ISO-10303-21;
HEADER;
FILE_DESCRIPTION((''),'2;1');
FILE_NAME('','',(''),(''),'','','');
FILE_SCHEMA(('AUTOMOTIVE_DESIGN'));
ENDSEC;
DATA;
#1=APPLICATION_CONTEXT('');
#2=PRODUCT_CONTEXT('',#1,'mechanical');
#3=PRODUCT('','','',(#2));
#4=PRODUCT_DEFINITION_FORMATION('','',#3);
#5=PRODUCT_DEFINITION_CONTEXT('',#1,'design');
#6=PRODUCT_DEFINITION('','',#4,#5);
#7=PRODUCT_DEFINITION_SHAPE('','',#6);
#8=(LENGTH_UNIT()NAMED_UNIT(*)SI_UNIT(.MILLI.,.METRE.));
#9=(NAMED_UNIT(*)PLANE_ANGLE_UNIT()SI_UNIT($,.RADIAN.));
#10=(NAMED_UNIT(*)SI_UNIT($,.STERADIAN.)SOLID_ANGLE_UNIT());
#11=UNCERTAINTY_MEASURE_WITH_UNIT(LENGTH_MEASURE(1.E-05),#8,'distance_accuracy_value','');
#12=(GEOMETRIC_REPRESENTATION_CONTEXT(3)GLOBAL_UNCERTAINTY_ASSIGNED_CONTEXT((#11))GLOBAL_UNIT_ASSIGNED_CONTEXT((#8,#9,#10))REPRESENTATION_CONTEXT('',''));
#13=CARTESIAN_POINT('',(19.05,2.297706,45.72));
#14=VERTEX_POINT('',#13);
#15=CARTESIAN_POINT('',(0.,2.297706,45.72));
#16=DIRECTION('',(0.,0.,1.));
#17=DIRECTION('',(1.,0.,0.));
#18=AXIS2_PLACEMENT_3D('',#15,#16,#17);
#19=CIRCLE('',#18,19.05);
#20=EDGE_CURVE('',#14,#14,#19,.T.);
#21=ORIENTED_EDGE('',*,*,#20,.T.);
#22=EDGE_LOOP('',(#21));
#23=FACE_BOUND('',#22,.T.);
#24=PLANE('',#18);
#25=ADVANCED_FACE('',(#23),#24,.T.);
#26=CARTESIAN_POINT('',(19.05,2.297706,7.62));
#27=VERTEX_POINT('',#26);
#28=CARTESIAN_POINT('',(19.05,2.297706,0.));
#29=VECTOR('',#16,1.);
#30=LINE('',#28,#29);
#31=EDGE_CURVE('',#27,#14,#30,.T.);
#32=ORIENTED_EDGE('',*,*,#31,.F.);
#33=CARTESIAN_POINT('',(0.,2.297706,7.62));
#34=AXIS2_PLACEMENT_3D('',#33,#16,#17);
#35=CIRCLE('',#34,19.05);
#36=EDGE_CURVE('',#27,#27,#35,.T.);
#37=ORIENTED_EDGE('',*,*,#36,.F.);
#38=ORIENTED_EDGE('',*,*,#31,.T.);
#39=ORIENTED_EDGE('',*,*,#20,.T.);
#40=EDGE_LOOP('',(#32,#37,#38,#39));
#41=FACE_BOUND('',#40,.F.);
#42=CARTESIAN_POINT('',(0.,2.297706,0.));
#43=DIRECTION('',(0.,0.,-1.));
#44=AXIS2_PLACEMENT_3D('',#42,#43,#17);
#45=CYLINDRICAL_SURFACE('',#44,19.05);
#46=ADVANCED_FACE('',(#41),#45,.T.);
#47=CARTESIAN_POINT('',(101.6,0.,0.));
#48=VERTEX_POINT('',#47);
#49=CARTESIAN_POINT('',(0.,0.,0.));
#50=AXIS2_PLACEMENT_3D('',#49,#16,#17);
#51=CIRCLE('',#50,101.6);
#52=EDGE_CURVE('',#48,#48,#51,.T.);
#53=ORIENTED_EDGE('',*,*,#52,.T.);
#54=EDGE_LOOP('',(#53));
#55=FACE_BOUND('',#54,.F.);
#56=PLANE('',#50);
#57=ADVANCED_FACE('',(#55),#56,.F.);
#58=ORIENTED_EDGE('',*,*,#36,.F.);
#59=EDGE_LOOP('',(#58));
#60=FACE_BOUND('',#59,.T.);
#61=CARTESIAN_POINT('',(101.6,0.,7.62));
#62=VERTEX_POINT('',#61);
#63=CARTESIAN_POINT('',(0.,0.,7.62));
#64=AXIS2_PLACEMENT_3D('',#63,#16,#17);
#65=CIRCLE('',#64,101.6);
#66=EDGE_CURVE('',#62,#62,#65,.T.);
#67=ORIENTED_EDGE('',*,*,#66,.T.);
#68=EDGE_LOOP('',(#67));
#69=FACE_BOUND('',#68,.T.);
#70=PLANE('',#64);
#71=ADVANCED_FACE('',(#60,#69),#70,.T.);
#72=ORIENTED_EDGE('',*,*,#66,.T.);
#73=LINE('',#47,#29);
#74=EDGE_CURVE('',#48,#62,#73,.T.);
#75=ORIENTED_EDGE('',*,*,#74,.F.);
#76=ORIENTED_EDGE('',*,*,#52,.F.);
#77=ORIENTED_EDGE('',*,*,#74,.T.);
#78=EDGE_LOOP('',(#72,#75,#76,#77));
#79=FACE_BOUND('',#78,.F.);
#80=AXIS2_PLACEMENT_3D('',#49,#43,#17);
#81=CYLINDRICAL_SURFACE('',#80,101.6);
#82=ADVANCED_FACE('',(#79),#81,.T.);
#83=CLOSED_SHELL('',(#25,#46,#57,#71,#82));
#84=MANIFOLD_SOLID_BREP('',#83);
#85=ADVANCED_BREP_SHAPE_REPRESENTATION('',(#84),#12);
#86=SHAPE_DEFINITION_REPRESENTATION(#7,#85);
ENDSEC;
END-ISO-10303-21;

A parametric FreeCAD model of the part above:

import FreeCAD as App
import Part
import Sketcher

V = App.Vector
Q = App.Units.Quantity

doc = App.newDocument("Part")
body = doc.addObject("PartDesign::Body", "Body")

sketch1 = body.newObject("Sketcher::SketchObject", "Sketch")
sketch1.AttachmentSupport = (doc.getObject("XY_Plane"), [""])
sketch1.MapMode = "FlatFace"
sketch1.addGeometry(Part.Circle(V(0, 2, 0), V(0, 0, 1), 19), False)
sketch1.addConstraint([
    Sketcher.Constraint("PointOnObject", 0, 3, -2),
    Sketcher.Constraint("Diameter", 0, Q("1.5 in")),
    Sketcher.Constraint("DistanceY", -1, 1, 0, 3, 2.297706),
])
pad1 = body.newObject("PartDesign::Pad", "Pad")
pad1.Profile = sketch1
pad1.Length = Q("1.8 in")

sketch2 = body.newObject("Sketcher::SketchObject", "Sketch001")
sketch2.AttachmentSupport = (doc.getObject("XY_Plane"), [""])
sketch2.MapMode = "FlatFace"
sketch2.addGeometry([
    Part.Circle(V(0, 0, 0), V(0, 0, 1), 102),
    Part.Circle(V(0, 2, 0), V(0, 0, 1), 19),
], False)
sketch2.addConstraint([
    Sketcher.Constraint("Coincident", 0, 3, -1, 1),
    Sketcher.Constraint("PointOnObject", 1, 3, -2),
    Sketcher.Constraint("Diameter", 0, Q("8 in")),
    Sketcher.Constraint("Diameter", 1, Q("1.5 in")),
    Sketcher.Constraint("DistanceY", -1, 1, 1, 3, 2.297706),
])
pad2 = body.newObject("PartDesign::Pad", "Pad001")
pad2.Profile = sketch2
pad2.Length = Q("0.3 in")

doc.recompute()
